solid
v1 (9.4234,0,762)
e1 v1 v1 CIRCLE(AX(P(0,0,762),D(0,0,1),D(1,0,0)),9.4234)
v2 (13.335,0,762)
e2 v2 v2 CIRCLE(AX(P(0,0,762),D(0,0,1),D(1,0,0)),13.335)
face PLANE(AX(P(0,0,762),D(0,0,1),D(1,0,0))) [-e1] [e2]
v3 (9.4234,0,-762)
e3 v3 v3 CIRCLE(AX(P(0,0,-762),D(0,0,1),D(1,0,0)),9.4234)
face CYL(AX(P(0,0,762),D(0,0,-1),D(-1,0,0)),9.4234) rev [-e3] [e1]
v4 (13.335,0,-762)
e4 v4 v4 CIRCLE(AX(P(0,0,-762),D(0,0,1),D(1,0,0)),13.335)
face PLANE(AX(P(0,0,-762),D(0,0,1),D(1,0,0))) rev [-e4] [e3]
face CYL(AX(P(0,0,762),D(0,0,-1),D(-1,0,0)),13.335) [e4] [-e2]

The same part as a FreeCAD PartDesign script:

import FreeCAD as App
import Part
import Sketcher
from FreeCAD import Vector
Q = App.Units.Quantity

doc = App.newDocument("Part")
body = doc.addObject("PartDesign::Body", "Body")

sketch1 = body.newObject("Sketcher::SketchObject", "Sketch")
sketch1.AttachmentSupport = (doc.getObject("XY_Plane"), [""])
sketch1.MapMode = "FlatFace"
sketch1.addGeometry(Part.Circle(Vector(0, 0, 0), Vector(0, 0, 1), 13), False)
sketch1.addGeometry(Part.Circle(Vector(0, 0, 0), Vector(0, 0, 1), 9), False)
sketch1.addConstraint(Sketcher.Constraint("Coincident", 0, 3, -1, 1))
sketch1.addConstraint(Sketcher.Constraint("Coincident", 1, 3, -1, 1))
sketch1.addConstraint(Sketcher.Constraint("Diameter", 0, Q("1.05 in")))
sketch1.addConstraint(Sketcher.Constraint("Diameter", 1, Q("0.742 in")))
pad1 = body.newObject("PartDesign::Pad", "Pad")
pad1.Profile = sketch1
pad1.Length = Q("60 in")
pad1.Midplane = True

doc.recompute()
